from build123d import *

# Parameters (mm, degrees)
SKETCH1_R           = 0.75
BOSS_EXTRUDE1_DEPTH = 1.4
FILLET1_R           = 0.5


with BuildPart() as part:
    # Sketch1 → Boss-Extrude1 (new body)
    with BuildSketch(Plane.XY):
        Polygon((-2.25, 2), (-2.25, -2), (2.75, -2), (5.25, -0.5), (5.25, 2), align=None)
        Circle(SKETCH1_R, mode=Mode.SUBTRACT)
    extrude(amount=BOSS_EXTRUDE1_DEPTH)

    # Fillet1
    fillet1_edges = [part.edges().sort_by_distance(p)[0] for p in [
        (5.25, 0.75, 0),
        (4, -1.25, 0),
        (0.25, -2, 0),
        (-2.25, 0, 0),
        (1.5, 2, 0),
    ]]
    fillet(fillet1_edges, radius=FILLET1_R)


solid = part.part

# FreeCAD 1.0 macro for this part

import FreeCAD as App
import Part
import Sketcher

V = App.Vector
Q = App.Units.Quantity


def edges_at(feature, points):
    """Names of the edges that pass closest to the given points."""
    edges = feature.Shape.Edges
    near = lambda p: min(range(len(edges)), key=lambda i: edges[i].distToShape(Part.Vertex(*p))[0])
    return sorted({f"Edge{near(p) + 1}" for p in points})


def add_polygon(sketch, points):
    """Adds a closed chain of lines whose ends are joined by coincident constraints."""
    first, n = sketch.GeometryCount, len(points)
    for a, b in zip(points, points[1:] + points[:1]):
        sketch.addGeometry(Part.LineSegment(App.Vector(*a, 0), App.Vector(*b, 0)), False)
    for i in range(n):
        sketch.addConstraint(Sketcher.Constraint("Coincident", first + i, 2, first + (i + 1) % n, 1))

doc = App.newDocument("Part")
params = doc.addObject("Spreadsheet::Sheet", "Params")
for row, (alias, value) in enumerate([
    ("sketch1_diameter", "1.5 mm"),
    ("sketch1_width", "5 mm"),
    ("sketch1_height", "4 mm"),
    ("sketch1_width2", "7.5 mm"),
    ("sketch1_height2", "2.5 mm"),
    ("pad1_length", "1.4 mm"),
    ("fillet_radius", "0.5 mm"),
], start=1):
    params.set(f"A{row}", alias)
    params.set(f"B{row}", "=" + value)
    params.setAlias(f"B{row}", alias)

body = doc.addObject("PartDesign::Body", "Body")

# Sketch on XY plane
sketch1 = body.newObject("Sketcher::SketchObject", "Sketch")
sketch1.AttachmentSupport = (doc.getObject("XY_Plane"), [""])
sketch1.MapMode = "FlatFace"
add_polygon(sketch1, [(-2.2, 2), (-2.2, -2), (2.8, -2), (5.2, -0.5), (5.2, 2)])  # lines 0-4
sketch1.addGeometry(Part.Circle(V(0, 0, 0), V(0, 0, 1), 0.8), False)  # 5
sketch1.addConstraint([
    Sketcher.Constraint("Vertical", 0),
    Sketcher.Constraint("Horizontal", 1),
    Sketcher.Constraint("Vertical", 3),
    Sketcher.Constraint("Horizontal", 4),
    Sketcher.Constraint("Coincident", 5, 3, -1, 1),
    Sketcher.Constraint("Diameter", 5, Q("1.5 mm")),
    Sketcher.Constraint("DistanceX", 1, 1, 1, 2, Q("5 mm")),
    Sketcher.Constraint("DistanceY", 0, 2, 0, 1, Q("4 mm")),
    Sketcher.Constraint("DistanceX", 4, 2, 4, 1, Q("7.5 mm")),
    Sketcher.Constraint("DistanceY", 3, 1, 3, 2, Q("2.5 mm")),
    Sketcher.Constraint("DistanceY", 0, 2, -1, 1, Q("2 mm")),
    Sketcher.Constraint("DistanceX", 0, 2, -1, 1, Q("2.25 mm")),
])
sketch1.setExpression("Constraints[10]", "Params.sketch1_diameter")
sketch1.setExpression("Constraints[11]", "Params.sketch1_width")
sketch1.setExpression("Constraints[12]", "Params.sketch1_height")
sketch1.setExpression("Constraints[13]", "Params.sketch1_width2")
sketch1.setExpression("Constraints[14]", "Params.sketch1_height2")
pad1 = body.newObject("PartDesign::Pad", "Pad")
pad1.Profile = sketch1
pad1.setExpression("Length", "Params.pad1_length")
doc.recompute()

fillet = body.newObject("PartDesign::Fillet", "Fillet")
fillet.Base = (pad1, edges_at(pad1, [
    (5.25, 0.75, 0),
    (4, -1.25, 0),
    (0.25, -2, 0),
    (-2.25, 0, 0),
    (1.5, 2, 0),
]))
fillet.setExpression("Radius", "Params.fillet_radius")

doc.recompute()
